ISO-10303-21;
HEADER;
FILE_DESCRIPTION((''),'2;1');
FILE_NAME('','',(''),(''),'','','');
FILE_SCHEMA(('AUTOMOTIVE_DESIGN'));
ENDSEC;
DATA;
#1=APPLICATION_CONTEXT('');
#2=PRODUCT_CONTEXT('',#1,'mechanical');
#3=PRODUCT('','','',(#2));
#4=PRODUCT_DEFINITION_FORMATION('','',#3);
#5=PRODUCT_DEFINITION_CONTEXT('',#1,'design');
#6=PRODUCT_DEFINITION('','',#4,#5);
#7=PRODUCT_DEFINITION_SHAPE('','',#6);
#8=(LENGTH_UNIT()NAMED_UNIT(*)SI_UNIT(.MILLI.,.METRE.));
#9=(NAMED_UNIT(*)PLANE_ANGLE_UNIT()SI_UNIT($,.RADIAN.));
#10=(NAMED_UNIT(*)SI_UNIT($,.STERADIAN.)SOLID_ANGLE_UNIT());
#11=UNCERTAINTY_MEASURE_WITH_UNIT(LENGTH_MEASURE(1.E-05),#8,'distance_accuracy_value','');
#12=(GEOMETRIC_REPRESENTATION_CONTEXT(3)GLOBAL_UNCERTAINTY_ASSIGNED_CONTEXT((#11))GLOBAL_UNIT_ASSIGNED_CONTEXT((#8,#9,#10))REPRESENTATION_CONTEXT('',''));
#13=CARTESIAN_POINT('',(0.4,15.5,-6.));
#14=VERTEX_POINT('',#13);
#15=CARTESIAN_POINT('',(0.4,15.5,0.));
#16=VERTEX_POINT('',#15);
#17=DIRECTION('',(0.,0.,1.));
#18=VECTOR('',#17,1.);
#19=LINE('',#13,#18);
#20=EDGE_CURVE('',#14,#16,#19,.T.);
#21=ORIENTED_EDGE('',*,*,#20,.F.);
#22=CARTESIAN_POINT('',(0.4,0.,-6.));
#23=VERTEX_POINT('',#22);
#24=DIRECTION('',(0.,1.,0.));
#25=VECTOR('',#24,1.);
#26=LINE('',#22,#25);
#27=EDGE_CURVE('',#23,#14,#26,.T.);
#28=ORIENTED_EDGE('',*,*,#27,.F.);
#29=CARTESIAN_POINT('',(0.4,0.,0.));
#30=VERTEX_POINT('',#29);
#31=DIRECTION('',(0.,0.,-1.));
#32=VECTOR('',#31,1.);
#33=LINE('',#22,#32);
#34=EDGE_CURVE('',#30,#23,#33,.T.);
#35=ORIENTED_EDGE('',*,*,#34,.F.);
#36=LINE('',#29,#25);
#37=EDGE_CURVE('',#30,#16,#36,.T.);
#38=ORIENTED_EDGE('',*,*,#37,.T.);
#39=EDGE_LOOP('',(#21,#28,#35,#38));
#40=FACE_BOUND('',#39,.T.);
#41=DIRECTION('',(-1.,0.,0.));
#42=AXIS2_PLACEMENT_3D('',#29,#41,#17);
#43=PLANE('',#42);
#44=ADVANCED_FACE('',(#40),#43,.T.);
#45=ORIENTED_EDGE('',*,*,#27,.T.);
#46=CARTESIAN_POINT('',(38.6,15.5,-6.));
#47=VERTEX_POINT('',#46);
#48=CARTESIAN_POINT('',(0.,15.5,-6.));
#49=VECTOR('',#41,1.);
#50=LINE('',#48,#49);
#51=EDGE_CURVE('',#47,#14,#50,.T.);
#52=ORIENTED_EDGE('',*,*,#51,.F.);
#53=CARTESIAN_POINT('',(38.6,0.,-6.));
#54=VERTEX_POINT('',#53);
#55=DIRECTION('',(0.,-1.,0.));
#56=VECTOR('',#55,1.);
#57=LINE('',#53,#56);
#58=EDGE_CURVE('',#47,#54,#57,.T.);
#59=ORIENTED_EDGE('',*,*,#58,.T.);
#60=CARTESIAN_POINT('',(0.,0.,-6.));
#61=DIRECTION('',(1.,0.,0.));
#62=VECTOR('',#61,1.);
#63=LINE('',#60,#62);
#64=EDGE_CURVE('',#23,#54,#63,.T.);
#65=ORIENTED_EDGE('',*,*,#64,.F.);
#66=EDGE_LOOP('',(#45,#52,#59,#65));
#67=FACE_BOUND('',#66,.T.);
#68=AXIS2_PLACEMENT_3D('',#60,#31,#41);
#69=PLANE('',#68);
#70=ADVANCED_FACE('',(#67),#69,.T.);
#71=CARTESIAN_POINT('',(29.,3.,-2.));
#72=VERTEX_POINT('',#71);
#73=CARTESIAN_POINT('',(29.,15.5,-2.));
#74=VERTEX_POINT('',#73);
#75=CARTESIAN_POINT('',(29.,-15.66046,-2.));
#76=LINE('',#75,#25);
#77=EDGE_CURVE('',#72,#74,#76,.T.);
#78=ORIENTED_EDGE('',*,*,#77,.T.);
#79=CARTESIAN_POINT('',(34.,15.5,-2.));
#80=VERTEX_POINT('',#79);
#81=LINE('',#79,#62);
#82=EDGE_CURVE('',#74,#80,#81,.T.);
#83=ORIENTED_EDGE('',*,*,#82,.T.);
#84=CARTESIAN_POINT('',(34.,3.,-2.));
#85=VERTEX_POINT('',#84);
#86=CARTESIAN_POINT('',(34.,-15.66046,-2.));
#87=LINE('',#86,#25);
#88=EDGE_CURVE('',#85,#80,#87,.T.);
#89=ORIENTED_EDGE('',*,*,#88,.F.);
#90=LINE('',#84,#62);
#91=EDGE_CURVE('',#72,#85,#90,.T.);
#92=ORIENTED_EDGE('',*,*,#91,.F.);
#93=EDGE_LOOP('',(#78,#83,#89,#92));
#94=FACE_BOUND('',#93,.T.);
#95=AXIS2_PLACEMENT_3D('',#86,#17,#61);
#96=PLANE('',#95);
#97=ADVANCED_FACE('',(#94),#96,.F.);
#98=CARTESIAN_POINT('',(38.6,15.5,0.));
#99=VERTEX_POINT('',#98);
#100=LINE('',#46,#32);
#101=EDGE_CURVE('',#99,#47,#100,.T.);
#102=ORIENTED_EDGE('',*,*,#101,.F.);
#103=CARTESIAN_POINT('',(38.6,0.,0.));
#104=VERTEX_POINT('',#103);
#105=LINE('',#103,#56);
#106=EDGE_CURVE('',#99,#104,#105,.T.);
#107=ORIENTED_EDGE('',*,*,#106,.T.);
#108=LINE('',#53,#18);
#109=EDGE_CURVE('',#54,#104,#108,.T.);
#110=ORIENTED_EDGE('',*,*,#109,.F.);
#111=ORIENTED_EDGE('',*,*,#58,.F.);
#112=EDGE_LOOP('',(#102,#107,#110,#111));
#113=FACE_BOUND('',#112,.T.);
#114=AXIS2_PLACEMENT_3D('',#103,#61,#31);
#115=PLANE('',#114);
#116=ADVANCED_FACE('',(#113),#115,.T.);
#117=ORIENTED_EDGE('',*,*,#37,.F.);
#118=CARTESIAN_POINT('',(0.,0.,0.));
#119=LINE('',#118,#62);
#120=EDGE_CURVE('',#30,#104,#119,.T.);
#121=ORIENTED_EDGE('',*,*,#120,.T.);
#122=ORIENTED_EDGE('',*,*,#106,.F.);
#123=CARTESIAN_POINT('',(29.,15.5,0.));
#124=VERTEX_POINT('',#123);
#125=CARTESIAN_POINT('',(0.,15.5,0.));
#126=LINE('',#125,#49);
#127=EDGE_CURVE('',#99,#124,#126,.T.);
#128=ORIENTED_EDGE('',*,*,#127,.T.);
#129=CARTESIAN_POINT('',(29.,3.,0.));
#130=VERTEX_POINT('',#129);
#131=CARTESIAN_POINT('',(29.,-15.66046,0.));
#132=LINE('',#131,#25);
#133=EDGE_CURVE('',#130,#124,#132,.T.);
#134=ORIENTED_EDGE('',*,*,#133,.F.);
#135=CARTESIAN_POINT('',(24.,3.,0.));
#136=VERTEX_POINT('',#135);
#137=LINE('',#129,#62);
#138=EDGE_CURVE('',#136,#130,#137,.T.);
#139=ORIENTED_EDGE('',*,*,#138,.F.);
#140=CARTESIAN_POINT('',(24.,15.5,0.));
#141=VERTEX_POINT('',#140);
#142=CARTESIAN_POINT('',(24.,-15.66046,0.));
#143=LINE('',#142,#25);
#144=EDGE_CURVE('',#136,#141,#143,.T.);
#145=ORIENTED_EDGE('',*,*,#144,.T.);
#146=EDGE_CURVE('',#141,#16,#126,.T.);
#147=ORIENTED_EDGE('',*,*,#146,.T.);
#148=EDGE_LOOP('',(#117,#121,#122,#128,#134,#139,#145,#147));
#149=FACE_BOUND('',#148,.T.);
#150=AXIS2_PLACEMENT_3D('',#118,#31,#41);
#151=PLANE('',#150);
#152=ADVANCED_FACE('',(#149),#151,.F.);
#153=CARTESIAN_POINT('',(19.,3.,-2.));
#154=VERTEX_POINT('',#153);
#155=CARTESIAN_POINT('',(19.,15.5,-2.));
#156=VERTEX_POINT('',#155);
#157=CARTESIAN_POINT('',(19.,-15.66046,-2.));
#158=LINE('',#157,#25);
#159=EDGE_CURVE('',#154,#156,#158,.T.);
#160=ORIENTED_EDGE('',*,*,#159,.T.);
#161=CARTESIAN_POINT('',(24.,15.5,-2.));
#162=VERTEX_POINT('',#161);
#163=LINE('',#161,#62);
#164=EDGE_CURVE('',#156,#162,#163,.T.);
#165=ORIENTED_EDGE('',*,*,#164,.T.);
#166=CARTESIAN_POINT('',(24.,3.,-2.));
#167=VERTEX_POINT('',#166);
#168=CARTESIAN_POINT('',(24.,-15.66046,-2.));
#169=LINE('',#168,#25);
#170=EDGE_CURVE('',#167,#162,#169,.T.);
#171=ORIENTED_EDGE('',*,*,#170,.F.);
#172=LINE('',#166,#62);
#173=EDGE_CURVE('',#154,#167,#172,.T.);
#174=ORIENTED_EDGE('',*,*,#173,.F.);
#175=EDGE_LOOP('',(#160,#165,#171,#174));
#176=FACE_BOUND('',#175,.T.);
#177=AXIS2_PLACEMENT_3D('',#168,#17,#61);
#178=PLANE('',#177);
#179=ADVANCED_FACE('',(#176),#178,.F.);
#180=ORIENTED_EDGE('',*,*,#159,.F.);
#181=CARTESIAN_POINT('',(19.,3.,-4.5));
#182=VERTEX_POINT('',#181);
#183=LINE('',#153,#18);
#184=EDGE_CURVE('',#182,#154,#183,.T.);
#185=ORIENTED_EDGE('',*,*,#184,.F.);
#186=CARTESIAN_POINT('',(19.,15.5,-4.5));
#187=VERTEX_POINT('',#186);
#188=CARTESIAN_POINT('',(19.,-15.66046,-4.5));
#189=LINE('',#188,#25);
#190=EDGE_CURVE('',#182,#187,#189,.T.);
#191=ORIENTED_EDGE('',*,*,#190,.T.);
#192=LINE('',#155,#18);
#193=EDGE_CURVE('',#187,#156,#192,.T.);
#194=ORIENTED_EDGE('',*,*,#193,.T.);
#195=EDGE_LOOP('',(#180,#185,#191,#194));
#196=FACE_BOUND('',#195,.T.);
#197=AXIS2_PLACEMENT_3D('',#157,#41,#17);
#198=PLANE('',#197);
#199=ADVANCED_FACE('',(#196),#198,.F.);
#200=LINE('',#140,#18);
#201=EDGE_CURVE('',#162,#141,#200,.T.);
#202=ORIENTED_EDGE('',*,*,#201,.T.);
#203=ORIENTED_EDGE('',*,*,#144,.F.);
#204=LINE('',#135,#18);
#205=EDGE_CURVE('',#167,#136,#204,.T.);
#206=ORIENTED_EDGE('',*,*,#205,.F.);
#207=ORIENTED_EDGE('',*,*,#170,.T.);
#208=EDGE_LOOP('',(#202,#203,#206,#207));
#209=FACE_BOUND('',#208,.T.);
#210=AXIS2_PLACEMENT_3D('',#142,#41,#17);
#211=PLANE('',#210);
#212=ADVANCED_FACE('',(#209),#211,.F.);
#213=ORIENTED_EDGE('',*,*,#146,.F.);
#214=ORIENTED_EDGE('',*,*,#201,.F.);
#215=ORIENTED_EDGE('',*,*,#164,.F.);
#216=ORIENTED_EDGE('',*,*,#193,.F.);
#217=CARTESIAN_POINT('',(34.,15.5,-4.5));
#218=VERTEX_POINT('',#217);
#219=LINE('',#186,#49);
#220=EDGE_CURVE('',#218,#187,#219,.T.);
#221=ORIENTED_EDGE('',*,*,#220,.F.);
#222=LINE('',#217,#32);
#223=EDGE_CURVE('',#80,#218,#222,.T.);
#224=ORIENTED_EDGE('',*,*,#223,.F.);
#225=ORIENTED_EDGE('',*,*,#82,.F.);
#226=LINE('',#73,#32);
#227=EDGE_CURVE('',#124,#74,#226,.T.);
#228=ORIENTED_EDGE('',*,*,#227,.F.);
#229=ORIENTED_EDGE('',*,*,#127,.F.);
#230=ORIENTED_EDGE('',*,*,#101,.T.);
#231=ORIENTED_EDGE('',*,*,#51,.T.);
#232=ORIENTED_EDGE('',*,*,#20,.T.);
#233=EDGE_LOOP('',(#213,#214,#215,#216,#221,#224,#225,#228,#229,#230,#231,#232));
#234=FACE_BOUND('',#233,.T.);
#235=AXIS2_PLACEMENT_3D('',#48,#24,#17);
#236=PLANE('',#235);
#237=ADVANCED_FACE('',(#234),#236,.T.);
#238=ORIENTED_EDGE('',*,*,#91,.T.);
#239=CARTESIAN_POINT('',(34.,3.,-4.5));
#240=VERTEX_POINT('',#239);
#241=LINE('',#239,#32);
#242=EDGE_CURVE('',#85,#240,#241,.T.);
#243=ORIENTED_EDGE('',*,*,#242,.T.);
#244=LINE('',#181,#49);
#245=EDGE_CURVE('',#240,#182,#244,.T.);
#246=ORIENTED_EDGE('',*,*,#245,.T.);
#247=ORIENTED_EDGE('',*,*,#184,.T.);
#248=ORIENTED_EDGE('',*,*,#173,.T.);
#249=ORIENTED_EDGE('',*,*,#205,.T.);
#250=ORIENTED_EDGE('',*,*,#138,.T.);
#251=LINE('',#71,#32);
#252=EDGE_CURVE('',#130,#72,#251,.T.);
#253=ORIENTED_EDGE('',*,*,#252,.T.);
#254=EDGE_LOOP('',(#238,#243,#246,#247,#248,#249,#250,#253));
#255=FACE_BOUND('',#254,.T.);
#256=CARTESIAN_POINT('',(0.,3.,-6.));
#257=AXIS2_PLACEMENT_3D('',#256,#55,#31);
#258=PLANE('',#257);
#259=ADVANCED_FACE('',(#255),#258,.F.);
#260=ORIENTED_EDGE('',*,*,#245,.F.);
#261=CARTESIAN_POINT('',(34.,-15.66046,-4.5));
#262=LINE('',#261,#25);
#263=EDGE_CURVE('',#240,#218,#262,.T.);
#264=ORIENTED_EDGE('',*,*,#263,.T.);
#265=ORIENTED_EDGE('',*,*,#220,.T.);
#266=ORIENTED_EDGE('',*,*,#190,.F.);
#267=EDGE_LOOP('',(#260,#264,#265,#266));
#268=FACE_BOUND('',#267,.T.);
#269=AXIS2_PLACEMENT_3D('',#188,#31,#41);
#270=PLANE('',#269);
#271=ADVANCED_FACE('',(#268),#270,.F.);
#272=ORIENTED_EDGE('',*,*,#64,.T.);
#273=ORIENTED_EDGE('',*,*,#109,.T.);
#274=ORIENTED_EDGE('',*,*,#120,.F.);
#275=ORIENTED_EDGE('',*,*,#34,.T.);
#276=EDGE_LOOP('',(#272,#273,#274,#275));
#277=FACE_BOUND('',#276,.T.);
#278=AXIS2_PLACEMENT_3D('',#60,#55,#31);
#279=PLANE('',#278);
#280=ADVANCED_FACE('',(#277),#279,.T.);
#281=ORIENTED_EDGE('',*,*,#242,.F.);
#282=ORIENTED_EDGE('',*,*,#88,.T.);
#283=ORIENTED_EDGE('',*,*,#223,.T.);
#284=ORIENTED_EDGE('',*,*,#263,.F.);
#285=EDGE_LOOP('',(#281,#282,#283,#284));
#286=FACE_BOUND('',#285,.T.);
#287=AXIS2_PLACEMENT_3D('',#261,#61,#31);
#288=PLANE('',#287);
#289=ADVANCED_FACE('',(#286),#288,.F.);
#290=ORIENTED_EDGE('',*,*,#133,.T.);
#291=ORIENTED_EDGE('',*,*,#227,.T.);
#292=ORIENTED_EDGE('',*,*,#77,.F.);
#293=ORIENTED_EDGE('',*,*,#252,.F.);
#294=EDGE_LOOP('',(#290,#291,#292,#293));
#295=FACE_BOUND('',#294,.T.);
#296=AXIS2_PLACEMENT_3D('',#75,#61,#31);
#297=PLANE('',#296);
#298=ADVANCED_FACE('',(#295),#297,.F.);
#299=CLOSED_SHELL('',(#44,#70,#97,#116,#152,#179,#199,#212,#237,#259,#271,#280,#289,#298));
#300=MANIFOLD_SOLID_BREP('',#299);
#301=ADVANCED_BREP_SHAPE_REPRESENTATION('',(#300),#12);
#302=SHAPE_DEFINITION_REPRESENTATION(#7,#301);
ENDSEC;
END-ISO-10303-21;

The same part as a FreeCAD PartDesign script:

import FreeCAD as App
import Part
import Sketcher


def add_polygon(sketch, points):
    """Adds a closed chain of lines whose ends are joined by coincident constraints."""
    first, n = sketch.GeometryCount, len(points)
    for a, b in zip(points, points[1:] + points[:1]):
        sketch.addGeometry(Part.LineSegment(App.Vector(*a, 0), App.Vector(*b, 0)), False)
    for i in range(n):
        sketch.addConstraint(Sketcher.Constraint("Coincident", first + i, 2, first + (i + 1) % n, 1))

doc = App.newDocument("Part")
params = doc.addObject("Spreadsheet::Sheet", "Params")
for row, (alias, value) in enumerate([
    ("sketch1_width", "39 mm"),
    ("sketch1_height", "15.5 mm"),
    ("pad1_length", "6 mm"),
    ("sketch2_width", "5 mm"),
    ("sketch2_height", "2 mm"),
    ("sketch2_height2", "2.5 mm"),
    ("pocket1_length", "12.5 mm"),
    ("pocket2_length", "0.4 mm"),
    ("pocket3_length", "0.4 mm"),
], start=1):
    params.set(f"A{row}", alias)
    params.set(f"B{row}", "=" + value)
    params.setAlias(f"B{row}", alias)

body = doc.addObject("PartDesign::Body", "Body")

sketch1 = body.newObject("Sketcher::SketchObject", "Sketch")
sketch1.AttachmentSupport = (doc.getObject("XY_Plane"), [""])
sketch1.MapMode = "FlatFace"
add_polygon(sketch1, [(0, 16), (0, 0), (39, 0), (39, 16)])
sketch1.addConstraint(Sketcher.Constraint("Vertical", 0))
sketch1.addConstraint(Sketcher.Constraint("Horizontal", 1))
sketch1.addConstraint(Sketcher.Constraint("Vertical", 2))
sketch1.addConstraint(Sketcher.Constraint("Horizontal", 3))
sketch1.addConstraint(Sketcher.Constraint("Coincident", 0, 2, -1, 1))
sketch1.addConstraint(Sketcher.Constraint("DistanceX", 1, 1, 1, 2, 39.0))
sketch1.addConstraint(Sketcher.Constraint("DistanceY", 0, 2, 0, 1, 15.5))
sketch1.setExpression("Constraints[9]", "Params.sketch1_width")
sketch1.setExpression("Constraints[10]", "Params.sketch1_height")
pad1 = body.newObject("PartDesign::Pad", "Pad")
pad1.Profile = sketch1
pad1.setExpression("Length", "Params.pad1_length")
pad1.Reversed = True

sketch2 = body.newObject("Sketcher::SketchObject", "Sketch001")
sketch2.AttachmentSupport = (doc.getObject("XZ_Plane"), [""])
sketch2.MapMode = "FlatFace"
sketch2.AttachmentOffset = App.Placement(App.Vector(0, 0, -15.5), App.Rotation())
add_polygon(sketch2, [(24, -2), (24, 0), (29, 0), (29, -2), (34, -2), (34, -4.5), (19, -4.5), (19, -2)])
sketch2.addConstraint(Sketcher.Constraint("Vertical", 0))
sketch2.addConstraint(Sketcher.Constraint("Horizontal", 1))
sketch2.addConstraint(Sketcher.Constraint("Vertical", 2))
sketch2.addConstraint(Sketcher.Constraint("Horizontal", 3))
sketch2.addConstraint(Sketcher.Constraint("Vertical", 4))
sketch2.addConstraint(Sketcher.Constraint("Horizontal", 5))
sketch2.addConstraint(Sketcher.Constraint("Vertical", 6))
sketch2.addConstraint(Sketcher.Constraint("Horizontal", 7))
sketch2.addConstraint(Sketcher.Constraint("PointOnObject", 0, 2, -1))
sketch2.addConstraint(Sketcher.Constraint("Horizontal", 3, 2, 6, 2))
sketch2.addConstraint(Sketcher.Constraint("Equal", 1, 3))
sketch2.addConstraint(Sketcher.Constraint("Equal", 3, 7))
sketch2.addConstraint(Sketcher.Constraint("DistanceX", 1, 1, 1, 2, 5.0))
sketch2.addConstraint(Sketcher.Constraint("DistanceY", 0, 1, 0, 2, 2.0))
sketch2.addConstraint(Sketcher.Constraint("DistanceY", 4, 2, 4, 1, 2.5))
sketch2.addConstraint(Sketcher.Constraint("DistanceX", -1, 1, 0, 2, 24.0))
sketch2.setExpression("Constraints[20]", "Params.sketch2_width")
sketch2.setExpression("Constraints[21]", "Params.sketch2_height")
sketch2.setExpression("Constraints[22]", "Params.sketch2_height2")
pocket1 = body.newObject("PartDesign::Pocket", "Pocket")
pocket1.Profile = sketch2
pocket1.setExpression("Length", "Params.pocket1_length")
pocket1.Reversed = True

sketch3 = body.newObject("Sketcher::SketchObject", "Sketch002")
sketch3.AttachmentSupport = (doc.getObject("YZ_Plane"), [""])
sketch3.MapMode = "FlatFace"
sketch3.AttachmentOffset = App.Placement(App.Vector(0, 0, 39), App.Rotation())
add_polygon(sketch3, [(19, 4), (-9, 4), (-9, -17), (19, -17)])
sketch3.addConstraint(Sketcher.Constraint("Horizontal", 0))
sketch3.addConstraint(Sketcher.Constraint("Vertical", 1))
sketch3.addConstraint(Sketcher.Constraint("Horizontal", 2))
sketch3.addConstraint(Sketcher.Constraint("Vertical", 3))
sketch3.addConstraint(Sketcher.Constraint("DistanceX", 0, 2, -1, 1, 8.9413))
sketch3.addConstraint(Sketcher.Constraint("DistanceX", 0, 2, 0, 1, 28.236665))
sketch3.addConstraint(Sketcher.Constraint("DistanceY", 1, 2, 1, 1, 20.319843))
sketch3.addConstraint(Sketcher.Constraint("DistanceY", -1, 1, 0, 2, 3.504989))
pocket2 = body.newObject("PartDesign::Pocket", "Pocket001")
pocket2.Profile = sketch3
pocket2.setExpression("Length", "Params.pocket2_length")

sketch4 = body.newObject("Sketcher::SketchObject", "Sketch003")
sketch4.AttachmentSupport = (doc.getObject("YZ_Plane"), [""])
sketch4.MapMode = "FlatFace"
add_polygon(sketch4, [(18, -8), (-4, -8), (-4, 3), (18, 3)])
sketch4.addConstraint(Sketcher.Constraint("Horizontal", 0))
sketch4.addConstraint(Sketcher.Constraint("Vertical", 1))
sketch4.addConstraint(Sketcher.Constraint("Horizontal", 2))
sketch4.addConstraint(Sketcher.Constraint("Vertical", 3))
sketch4.addConstraint(Sketcher.Constraint("DistanceY", 1, 1, 1, 2, 11.083551))
sketch4.addConstraint(Sketcher.Constraint("DistanceX", 0, 2, 0, 1, 22.584934))
sketch4.addConstraint(Sketcher.Constraint("DistanceX", 0, 2, -1, 1, 4.15822))
sketch4.addConstraint(Sketcher.Constraint("DistanceY", 0, 2, -1, 1, 8.112948))
pocket3 = body.newObject("PartDesign::Pocket", "Pocket002")
pocket3.Profile = sketch4
pocket3.setExpression("Length", "Params.pocket3_length")
pocket3.Reversed = True

doc.recompute()
